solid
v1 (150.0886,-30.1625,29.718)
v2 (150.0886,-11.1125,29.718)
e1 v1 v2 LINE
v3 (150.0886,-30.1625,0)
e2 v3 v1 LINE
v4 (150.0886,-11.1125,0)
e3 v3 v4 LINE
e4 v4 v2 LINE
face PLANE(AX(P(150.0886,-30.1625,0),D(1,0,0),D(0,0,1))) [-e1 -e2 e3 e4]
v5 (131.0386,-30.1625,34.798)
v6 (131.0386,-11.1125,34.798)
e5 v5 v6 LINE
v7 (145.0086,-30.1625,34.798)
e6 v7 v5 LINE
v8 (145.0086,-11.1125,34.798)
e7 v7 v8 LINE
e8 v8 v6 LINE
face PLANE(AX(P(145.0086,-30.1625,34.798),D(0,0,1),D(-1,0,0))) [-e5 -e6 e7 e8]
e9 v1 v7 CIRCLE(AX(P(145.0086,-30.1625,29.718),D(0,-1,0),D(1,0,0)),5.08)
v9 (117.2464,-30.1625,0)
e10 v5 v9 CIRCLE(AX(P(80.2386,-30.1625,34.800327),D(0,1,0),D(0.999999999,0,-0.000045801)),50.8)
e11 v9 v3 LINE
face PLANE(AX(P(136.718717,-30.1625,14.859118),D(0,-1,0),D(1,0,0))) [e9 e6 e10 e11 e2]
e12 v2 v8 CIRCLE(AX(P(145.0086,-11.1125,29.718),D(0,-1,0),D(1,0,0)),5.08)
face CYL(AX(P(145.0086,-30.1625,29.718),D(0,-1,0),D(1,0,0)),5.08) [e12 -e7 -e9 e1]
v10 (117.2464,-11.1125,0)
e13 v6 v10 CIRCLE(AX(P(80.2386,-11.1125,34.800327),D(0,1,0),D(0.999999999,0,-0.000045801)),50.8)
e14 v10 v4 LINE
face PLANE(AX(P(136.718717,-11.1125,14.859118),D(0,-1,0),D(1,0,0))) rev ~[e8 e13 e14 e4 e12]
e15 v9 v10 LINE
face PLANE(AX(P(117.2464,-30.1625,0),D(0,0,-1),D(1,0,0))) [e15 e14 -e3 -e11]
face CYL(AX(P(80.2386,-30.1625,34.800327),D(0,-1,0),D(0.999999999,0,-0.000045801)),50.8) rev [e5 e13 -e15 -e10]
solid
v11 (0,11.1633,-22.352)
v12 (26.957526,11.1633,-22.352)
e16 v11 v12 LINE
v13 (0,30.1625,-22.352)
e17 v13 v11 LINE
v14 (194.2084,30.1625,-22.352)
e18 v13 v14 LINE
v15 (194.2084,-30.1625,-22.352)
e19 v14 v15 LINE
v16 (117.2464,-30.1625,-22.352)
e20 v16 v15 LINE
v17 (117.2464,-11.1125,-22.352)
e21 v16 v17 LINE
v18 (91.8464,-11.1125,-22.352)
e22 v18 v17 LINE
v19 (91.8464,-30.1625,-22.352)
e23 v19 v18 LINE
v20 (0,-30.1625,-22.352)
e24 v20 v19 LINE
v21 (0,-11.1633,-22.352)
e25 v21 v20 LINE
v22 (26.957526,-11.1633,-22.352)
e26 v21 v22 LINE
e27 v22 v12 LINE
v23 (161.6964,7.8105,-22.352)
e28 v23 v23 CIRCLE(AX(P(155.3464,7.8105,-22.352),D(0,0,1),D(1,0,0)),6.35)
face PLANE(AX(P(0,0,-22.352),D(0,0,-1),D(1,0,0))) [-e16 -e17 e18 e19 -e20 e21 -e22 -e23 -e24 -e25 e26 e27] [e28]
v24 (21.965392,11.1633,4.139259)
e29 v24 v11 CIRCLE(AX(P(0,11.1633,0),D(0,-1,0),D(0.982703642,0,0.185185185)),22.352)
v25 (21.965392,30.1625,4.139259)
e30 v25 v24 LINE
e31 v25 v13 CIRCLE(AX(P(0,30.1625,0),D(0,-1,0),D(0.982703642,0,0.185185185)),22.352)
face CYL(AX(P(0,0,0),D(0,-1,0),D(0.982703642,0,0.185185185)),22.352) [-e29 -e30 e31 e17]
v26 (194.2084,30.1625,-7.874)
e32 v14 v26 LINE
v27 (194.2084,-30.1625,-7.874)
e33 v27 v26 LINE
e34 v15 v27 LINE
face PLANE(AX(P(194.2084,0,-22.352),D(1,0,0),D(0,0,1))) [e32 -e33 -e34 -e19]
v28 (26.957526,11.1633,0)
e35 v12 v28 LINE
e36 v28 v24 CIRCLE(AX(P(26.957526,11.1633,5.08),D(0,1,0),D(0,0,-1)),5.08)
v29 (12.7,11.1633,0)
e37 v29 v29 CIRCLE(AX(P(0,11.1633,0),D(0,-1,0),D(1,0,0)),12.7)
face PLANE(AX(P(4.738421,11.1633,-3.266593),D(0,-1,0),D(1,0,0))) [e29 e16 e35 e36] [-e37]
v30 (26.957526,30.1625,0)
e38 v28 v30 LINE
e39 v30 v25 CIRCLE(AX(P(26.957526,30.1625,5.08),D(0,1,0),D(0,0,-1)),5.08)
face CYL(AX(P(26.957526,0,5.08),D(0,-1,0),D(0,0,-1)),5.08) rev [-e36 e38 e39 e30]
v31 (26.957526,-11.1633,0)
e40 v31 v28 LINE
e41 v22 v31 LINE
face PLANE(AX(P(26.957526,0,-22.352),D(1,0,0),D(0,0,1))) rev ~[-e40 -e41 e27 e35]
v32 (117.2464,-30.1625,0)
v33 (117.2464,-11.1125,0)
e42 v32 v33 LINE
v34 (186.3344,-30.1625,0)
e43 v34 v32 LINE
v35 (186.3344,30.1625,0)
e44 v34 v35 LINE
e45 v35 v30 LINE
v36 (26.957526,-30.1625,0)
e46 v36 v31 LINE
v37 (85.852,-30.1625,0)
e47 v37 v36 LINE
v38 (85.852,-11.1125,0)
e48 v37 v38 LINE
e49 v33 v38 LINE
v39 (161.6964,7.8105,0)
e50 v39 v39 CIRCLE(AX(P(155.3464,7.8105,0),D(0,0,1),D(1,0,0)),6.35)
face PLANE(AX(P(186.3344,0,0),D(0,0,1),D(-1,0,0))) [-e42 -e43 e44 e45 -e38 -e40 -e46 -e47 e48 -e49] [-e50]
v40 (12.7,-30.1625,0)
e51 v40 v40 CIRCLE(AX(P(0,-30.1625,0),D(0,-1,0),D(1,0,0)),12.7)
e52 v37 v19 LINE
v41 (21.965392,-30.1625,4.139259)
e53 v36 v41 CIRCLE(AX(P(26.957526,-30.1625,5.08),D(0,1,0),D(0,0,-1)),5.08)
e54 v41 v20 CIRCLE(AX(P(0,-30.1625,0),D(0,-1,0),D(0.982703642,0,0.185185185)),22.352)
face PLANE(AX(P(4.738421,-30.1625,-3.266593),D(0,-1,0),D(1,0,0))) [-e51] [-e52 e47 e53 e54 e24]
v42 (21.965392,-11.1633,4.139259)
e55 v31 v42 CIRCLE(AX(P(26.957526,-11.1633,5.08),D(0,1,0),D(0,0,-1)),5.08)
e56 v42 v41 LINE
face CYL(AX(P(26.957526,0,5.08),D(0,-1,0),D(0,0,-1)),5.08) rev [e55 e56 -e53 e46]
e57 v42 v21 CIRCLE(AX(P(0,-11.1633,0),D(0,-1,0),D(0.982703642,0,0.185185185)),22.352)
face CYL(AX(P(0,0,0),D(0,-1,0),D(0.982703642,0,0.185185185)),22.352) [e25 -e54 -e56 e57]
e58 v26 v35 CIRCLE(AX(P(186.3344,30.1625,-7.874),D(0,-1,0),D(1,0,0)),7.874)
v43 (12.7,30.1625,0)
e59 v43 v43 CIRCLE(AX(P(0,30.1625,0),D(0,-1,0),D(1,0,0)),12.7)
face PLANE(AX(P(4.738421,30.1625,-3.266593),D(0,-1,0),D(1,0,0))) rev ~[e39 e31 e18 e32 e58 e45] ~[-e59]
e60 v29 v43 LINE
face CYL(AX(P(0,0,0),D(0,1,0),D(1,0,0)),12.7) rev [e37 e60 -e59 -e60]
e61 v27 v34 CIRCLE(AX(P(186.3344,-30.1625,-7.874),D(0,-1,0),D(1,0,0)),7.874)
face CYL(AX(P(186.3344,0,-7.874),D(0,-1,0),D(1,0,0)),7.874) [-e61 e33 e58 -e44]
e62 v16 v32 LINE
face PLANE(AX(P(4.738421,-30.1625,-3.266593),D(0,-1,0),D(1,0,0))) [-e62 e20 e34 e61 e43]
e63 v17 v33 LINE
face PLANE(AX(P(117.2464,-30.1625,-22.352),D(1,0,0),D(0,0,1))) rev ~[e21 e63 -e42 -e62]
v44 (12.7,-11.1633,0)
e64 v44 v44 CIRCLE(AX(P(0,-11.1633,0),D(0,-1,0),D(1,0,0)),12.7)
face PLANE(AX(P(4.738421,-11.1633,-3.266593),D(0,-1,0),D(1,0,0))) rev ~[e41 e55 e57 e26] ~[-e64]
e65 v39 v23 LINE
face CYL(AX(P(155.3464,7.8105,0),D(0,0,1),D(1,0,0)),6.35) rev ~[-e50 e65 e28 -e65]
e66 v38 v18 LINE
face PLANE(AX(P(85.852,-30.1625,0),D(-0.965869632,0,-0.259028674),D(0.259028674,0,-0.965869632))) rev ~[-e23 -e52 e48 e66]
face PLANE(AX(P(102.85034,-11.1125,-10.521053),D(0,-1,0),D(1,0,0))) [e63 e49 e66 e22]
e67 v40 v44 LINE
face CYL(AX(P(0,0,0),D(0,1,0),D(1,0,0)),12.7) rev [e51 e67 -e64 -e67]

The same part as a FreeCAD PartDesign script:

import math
import FreeCAD as App
import Part
import Sketcher

V = App.Vector
Q = App.Units.Quantity


def add_polygon(sketch, points):
    """Adds a closed chain of lines whose ends are joined by coincident constraints."""
    first, n = sketch.GeometryCount, len(points)
    for a, b in zip(points, points[1:] + points[:1]):
        sketch.addGeometry(Part.LineSegment(App.Vector(*a, 0), App.Vector(*b, 0)), False)
    for i in range(n):
        sketch.addConstraint(Sketcher.Constraint("Coincident", first + i, 2, first + (i + 1) % n, 1))

doc = App.newDocument("Part")
body = doc.addObject("PartDesign::Body", "Body")

# Sketch on XZ plane
sketch1 = doc.addObject("Sketcher::SketchObject", "Sketch")
body.addObject(sketch1)
sketch1.AttachmentSupport = (doc.XZ_Plane, [""])
sketch1.MapMode = "FlatFace"
sketch1.addGeometry(Part.ArcOfCircle(Part.Circle(V(27, 5, 0), V(0, 0, 1), 5), math.radians(-169), math.radians(-90)), False)
sketch1.addGeometry(Part.ArcOfCircle(Part.Circle(V(0, 0, 0), V(0, 0, 1), 22), math.radians(11), math.radians(270)), False)
sketch1.addGeometry(Part.LineSegment(V(0, -22, 0), V(194, -22, 0)), False)
sketch1.addGeometry(Part.LineSegment(V(194, -22, 0), V(194, -8, 0)), False)
sketch1.addGeometry(Part.ArcOfCircle(Part.Circle(V(186, -8, 0), V(0, 0, 1), 8), math.radians(0), math.radians(90)), False)
sketch1.addGeometry(Part.LineSegment(V(186, 0, 0), V(27, 0, 0)), False)
sketch1.addGeometry(Part.Circle(V(0, 0, 0), V(0, 0, 1), 13), False)
sketch1.addConstraint(Sketcher.Constraint("Tangent", 0, 1, 1, 1))
sketch1.addConstraint(Sketcher.Constraint("Tangent", 1, 2, 2, 1))
sketch1.addConstraint(Sketcher.Constraint("Coincident", 2, 2, 3, 1))
sketch1.addConstraint(Sketcher.Constraint("Tangent", 3, 2, 4, 1))
sketch1.addConstraint(Sketcher.Constraint("Tangent", 4, 2, 5, 1))
sketch1.addConstraint(Sketcher.Constraint("Tangent", 5, 2, 0, 2))
sketch1.addConstraint(Sketcher.Constraint("Horizontal", 2))
sketch1.addConstraint(Sketcher.Constraint("Vertical", 3))
sketch1.addConstraint(Sketcher.Constraint("Horizontal", 5))
sketch1.addConstraint(Sketcher.Constraint("Coincident", 1, 3, -1, 1))
sketch1.addConstraint(Sketcher.Constraint("Coincident", 6, 3, -1, 1))
sketch1.addConstraint(Sketcher.Constraint("PointOnObject", 4, 2, -1))
sketch1.addConstraint(Sketcher.Constraint("Diameter", 6, Q("1 in")))
sketch1.addConstraint(Sketcher.Constraint("Radius", 0, Q("0.2 in")))
sketch1.addConstraint(Sketcher.Constraint("Radius", 1, Q("0.88 in")))
sketch1.addConstraint(Sketcher.Constraint("Radius", 4, Q("0.31 in")))
sketch1.addConstraint(Sketcher.Constraint("DistanceX", 2, 1, 2, 2, Q("7.646 in")))
pad1 = doc.addObject("PartDesign::Pad", "Pad")
body.addObject(pad1)
pad1.Profile = sketch1
pad1.Length = Q("2.375 in")
pad1.Midplane = True

# Sketch on XZ plane
sketch2 = doc.addObject("Sketcher::SketchObject", "Sketch001")
body.addObject(sketch2)
sketch2.AttachmentSupport = (doc.XZ_Plane, [""])
sketch2.MapMode = "FlatFace"
sketch2.addGeometry(Part.ArcOfCircle(Part.Circle(V(27, 5, 0), V(0, 0, 1), 5), math.radians(-169), math.radians(-90)), False)
sketch2.addGeometry(Part.ArcOfCircle(Part.Circle(V(0, 0, 0), V(0, 0, 1), 22), math.radians(11), math.radians(270)), False)
sketch2.addGeometry(Part.LineSegment(V(0, -22, 0), V(27, -22, 0)), False)
sketch2.addGeometry(Part.LineSegment(V(27, -22, 0), V(27, 0, 0)), False)
sketch2.addGeometry(Part.Circle(V(0, 0, 0), V(0, 0, 1), 13), False)
sketch2.addConstraint(Sketcher.Constraint("Tangent", 0, 1, 1, 1))
sketch2.addConstraint(Sketcher.Constraint("Tangent", 1, 2, 2, 1))
sketch2.addConstraint(Sketcher.Constraint("Coincident", 2, 2, 3, 1))
sketch2.addConstraint(Sketcher.Constraint("Coincident", 3, 2, 0, 2))
sketch2.addConstraint(Sketcher.Constraint("Horizontal", 2))
sketch2.addConstraint(Sketcher.Constraint("Vertical", 3))
sketch2.addConstraint(Sketcher.Constraint("Coincident", 1, 3, -1, 1))
sketch2.addConstraint(Sketcher.Constraint("Coincident", 4, 3, -1, 1))
sketch2.addConstraint(Sketcher.Constraint("PointOnObject", 3, 2, -1))
sketch2.addConstraint(Sketcher.Constraint("Vertical", 0, 3, 2, 2))
sketch2.addConstraint(Sketcher.Constraint("Diameter", 4, Q("1 in")))
sketch2.addConstraint(Sketcher.Constraint("Radius", 0, Q("0.2 in")))
sketch2.addConstraint(Sketcher.Constraint("Radius", 1, Q("0.88 in")))
pocket1 = doc.addObject("PartDesign::Pocket", "Pocket")
body.addObject(pocket1)
pocket1.Profile = sketch2
pocket1.Length = Q("0.879 in")
pocket1.Midplane = True

# Sketch on XZ plane
sketch3 = doc.addObject("Sketcher::SketchObject", "Sketch002")
body.addObject(sketch3)
sketch3.AttachmentSupport = (doc.XZ_Plane, [""])
sketch3.MapMode = "FlatFace"
sketch3.AttachmentOffset = App.Placement(V(0, 0, 1.1875 * 25.4), App.Rotation())
add_polygon(sketch3, [(117, 0), (86, 0), (92, -22), (117, -22)])  # lines 0-3
sketch3.addConstraint(Sketcher.Constraint("Horizontal", 0))
sketch3.addConstraint(Sketcher.Constraint("Horizontal", 2))
sketch3.addConstraint(Sketcher.Constraint("Vertical", 3))
sketch3.addConstraint(Sketcher.Constraint("PointOnObject", 0, 2, -1))
sketch3.addConstraint(Sketcher.Constraint("DistanceX", 2, 1, 2, 2, Q("1 in")))
sketch3.addConstraint(Sketcher.Constraint("DistanceY", 3, 1, 3, 2, Q("0.88 in")))
sketch3.addConstraint(Sketcher.Constraint("DistanceX", 0, 2, 0, 1, Q("1.236 in")))
sketch3.addConstraint(Sketcher.Constraint("DistanceX", -1, 1, 0, 2, Q("3.38 in")))
pocket2 = doc.addObject("PartDesign::Pocket", "Pocket001")
body.addObject(pocket2)
pocket2.Profile = sketch3
pocket2.Length = Q("0.75 in")

# Sketch on XY plane
sketch4 = doc.addObject("Sketcher::SketchObject", "Sketch003")
body.addObject(sketch4)
sketch4.AttachmentSupport = (doc.XY_Plane, [""])
sketch4.MapMode = "FlatFace"
sketch4.addGeometry(Part.Circle(V(155, 8, 0), V(0, 0, 1), 6), False)
sketch4.addConstraint(Sketcher.Constraint("Diameter", 0, Q("0.5 in")))
sketch4.addConstraint(Sketcher.Constraint("DistanceX", -1, 1, 0, 3, Q("6.116 in")))
sketch4.addConstraint(Sketcher.Constraint("DistanceY", -1, 1, 0, 3, Q("0.3075 in")))
pocket3 = doc.addObject("PartDesign::Pocket", "Pocket002")
body.addObject(pocket3)
pocket3.Profile = sketch4
pocket3.Type = "ThroughAll"
body2 = doc.addObject("PartDesign::Body", "Body001")

# Sketch on XZ plane
sketch5 = doc.addObject("Sketcher::SketchObject", "Sketch004")
body2.addObject(sketch5)
sketch5.AttachmentSupport = (doc.getObject("XZ_Plane001"), [""])
sketch5.MapMode = "FlatFace"
sketch5.AttachmentOffset = App.Placement(V(0, 0, 1.1875 * 25.4), App.Rotation())
sketch5.addGeometry(Part.LineSegment(V(117, 0, 0), V(150, 0, 0)), False)
sketch5.addGeometry(Part.LineSegment(V(150, 0, 0), V(150, 30, 0)), False)
sketch5.addGeometry(Part.ArcOfCircle(Part.Circle(V(145, 30, 0), V(0, 0, 1), 5), math.radians(0), math.radians(90)), False)
sketch5.addGeometry(Part.LineSegment(V(145, 35, 0), V(131, 35, 0)), False)
sketch5.addGeometry(Part.ArcOfCircle(Part.Circle(V(80, 35, 0), V(0, 0, 1), 51), math.radians(-43), math.radians(0)), False)
sketch5.addConstraint(Sketcher.Constraint("Coincident", 0, 2, 1, 1))
sketch5.addConstraint(Sketcher.Constraint("Tangent", 1, 2, 2, 1))
sketch5.addConstraint(Sketcher.Constraint("Tangent", 2, 2, 3, 1))
sketch5.addConstraint(Sketcher.Constraint("Coincident", 3, 2, 4, 2))
sketch5.addConstraint(Sketcher.Constraint("Coincident", 4, 1, 0, 1))
sketch5.addConstraint(Sketcher.Constraint("Horizontal", 0))
sketch5.addConstraint(Sketcher.Constraint("Vertical", 1))
sketch5.addConstraint(Sketcher.Constraint("Horizontal", 3))
sketch5.addConstraint(Sketcher.Constraint("PointOnObject", 0, 2, -1))
sketch5.addConstraint(Sketcher.Constraint("Radius", 4, Q("2 in")))
sketch5.addConstraint(Sketcher.Constraint("Radius", 2, Q("0.2 in")))
sketch5.addConstraint(Sketcher.Constraint("DistanceX", 3, 2, 3, 1, Q("0.55 in")))
sketch5.addConstraint(Sketcher.Constraint("DistanceY", 1, 1, 1, 2, Q("1.17 in")))
sketch5.addConstraint(Sketcher.Constraint("DistanceX", 0, 1, 0, 2, Q("1.293 in")))
sketch5.addConstraint(Sketcher.Constraint("DistanceX", -1, 1, 2, 3, Q("5.709 in")))
pad2 = doc.addObject("PartDesign::Pad", "Pad001")
body2.addObject(pad2)
pad2.Profile = sketch5
pad2.Length = Q("0.75 in")
pad2.Reversed = True

doc.recompute()
